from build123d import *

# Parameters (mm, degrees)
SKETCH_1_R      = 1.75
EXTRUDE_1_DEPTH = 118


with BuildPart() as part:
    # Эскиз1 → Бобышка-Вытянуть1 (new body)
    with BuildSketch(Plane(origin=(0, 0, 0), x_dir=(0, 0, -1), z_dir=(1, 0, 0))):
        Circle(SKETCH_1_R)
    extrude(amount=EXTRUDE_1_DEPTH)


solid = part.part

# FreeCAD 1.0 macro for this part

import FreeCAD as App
import Part
import Sketcher

V = App.Vector

doc = App.newDocument("Part")
body = doc.addObject("PartDesign::Body", "Body")

# Sketch on YZ plane
sketch1 = doc.addObject("Sketcher::SketchObject", "Sketch")
body.addObject(sketch1)
sketch1.AttachmentSupport = (doc.YZ_Plane, [""])
sketch1.MapMode = "FlatFace"
sketch1.addGeometry(Part.Circle(V(0, 0, 0), V(0, 0, 1), 1.8), False)
sketch1.addConstraint([
    Sketcher.Constraint("Coincident", 0, 3, -1, 1),
    Sketcher.Constraint("Diameter", 0, 3.5),
])
pad1 = doc.addObject("PartDesign::Pad", "Pad")
body.addObject(pad1)
pad1.Profile = sketch1
pad1.Length = 118

doc.recompute()
